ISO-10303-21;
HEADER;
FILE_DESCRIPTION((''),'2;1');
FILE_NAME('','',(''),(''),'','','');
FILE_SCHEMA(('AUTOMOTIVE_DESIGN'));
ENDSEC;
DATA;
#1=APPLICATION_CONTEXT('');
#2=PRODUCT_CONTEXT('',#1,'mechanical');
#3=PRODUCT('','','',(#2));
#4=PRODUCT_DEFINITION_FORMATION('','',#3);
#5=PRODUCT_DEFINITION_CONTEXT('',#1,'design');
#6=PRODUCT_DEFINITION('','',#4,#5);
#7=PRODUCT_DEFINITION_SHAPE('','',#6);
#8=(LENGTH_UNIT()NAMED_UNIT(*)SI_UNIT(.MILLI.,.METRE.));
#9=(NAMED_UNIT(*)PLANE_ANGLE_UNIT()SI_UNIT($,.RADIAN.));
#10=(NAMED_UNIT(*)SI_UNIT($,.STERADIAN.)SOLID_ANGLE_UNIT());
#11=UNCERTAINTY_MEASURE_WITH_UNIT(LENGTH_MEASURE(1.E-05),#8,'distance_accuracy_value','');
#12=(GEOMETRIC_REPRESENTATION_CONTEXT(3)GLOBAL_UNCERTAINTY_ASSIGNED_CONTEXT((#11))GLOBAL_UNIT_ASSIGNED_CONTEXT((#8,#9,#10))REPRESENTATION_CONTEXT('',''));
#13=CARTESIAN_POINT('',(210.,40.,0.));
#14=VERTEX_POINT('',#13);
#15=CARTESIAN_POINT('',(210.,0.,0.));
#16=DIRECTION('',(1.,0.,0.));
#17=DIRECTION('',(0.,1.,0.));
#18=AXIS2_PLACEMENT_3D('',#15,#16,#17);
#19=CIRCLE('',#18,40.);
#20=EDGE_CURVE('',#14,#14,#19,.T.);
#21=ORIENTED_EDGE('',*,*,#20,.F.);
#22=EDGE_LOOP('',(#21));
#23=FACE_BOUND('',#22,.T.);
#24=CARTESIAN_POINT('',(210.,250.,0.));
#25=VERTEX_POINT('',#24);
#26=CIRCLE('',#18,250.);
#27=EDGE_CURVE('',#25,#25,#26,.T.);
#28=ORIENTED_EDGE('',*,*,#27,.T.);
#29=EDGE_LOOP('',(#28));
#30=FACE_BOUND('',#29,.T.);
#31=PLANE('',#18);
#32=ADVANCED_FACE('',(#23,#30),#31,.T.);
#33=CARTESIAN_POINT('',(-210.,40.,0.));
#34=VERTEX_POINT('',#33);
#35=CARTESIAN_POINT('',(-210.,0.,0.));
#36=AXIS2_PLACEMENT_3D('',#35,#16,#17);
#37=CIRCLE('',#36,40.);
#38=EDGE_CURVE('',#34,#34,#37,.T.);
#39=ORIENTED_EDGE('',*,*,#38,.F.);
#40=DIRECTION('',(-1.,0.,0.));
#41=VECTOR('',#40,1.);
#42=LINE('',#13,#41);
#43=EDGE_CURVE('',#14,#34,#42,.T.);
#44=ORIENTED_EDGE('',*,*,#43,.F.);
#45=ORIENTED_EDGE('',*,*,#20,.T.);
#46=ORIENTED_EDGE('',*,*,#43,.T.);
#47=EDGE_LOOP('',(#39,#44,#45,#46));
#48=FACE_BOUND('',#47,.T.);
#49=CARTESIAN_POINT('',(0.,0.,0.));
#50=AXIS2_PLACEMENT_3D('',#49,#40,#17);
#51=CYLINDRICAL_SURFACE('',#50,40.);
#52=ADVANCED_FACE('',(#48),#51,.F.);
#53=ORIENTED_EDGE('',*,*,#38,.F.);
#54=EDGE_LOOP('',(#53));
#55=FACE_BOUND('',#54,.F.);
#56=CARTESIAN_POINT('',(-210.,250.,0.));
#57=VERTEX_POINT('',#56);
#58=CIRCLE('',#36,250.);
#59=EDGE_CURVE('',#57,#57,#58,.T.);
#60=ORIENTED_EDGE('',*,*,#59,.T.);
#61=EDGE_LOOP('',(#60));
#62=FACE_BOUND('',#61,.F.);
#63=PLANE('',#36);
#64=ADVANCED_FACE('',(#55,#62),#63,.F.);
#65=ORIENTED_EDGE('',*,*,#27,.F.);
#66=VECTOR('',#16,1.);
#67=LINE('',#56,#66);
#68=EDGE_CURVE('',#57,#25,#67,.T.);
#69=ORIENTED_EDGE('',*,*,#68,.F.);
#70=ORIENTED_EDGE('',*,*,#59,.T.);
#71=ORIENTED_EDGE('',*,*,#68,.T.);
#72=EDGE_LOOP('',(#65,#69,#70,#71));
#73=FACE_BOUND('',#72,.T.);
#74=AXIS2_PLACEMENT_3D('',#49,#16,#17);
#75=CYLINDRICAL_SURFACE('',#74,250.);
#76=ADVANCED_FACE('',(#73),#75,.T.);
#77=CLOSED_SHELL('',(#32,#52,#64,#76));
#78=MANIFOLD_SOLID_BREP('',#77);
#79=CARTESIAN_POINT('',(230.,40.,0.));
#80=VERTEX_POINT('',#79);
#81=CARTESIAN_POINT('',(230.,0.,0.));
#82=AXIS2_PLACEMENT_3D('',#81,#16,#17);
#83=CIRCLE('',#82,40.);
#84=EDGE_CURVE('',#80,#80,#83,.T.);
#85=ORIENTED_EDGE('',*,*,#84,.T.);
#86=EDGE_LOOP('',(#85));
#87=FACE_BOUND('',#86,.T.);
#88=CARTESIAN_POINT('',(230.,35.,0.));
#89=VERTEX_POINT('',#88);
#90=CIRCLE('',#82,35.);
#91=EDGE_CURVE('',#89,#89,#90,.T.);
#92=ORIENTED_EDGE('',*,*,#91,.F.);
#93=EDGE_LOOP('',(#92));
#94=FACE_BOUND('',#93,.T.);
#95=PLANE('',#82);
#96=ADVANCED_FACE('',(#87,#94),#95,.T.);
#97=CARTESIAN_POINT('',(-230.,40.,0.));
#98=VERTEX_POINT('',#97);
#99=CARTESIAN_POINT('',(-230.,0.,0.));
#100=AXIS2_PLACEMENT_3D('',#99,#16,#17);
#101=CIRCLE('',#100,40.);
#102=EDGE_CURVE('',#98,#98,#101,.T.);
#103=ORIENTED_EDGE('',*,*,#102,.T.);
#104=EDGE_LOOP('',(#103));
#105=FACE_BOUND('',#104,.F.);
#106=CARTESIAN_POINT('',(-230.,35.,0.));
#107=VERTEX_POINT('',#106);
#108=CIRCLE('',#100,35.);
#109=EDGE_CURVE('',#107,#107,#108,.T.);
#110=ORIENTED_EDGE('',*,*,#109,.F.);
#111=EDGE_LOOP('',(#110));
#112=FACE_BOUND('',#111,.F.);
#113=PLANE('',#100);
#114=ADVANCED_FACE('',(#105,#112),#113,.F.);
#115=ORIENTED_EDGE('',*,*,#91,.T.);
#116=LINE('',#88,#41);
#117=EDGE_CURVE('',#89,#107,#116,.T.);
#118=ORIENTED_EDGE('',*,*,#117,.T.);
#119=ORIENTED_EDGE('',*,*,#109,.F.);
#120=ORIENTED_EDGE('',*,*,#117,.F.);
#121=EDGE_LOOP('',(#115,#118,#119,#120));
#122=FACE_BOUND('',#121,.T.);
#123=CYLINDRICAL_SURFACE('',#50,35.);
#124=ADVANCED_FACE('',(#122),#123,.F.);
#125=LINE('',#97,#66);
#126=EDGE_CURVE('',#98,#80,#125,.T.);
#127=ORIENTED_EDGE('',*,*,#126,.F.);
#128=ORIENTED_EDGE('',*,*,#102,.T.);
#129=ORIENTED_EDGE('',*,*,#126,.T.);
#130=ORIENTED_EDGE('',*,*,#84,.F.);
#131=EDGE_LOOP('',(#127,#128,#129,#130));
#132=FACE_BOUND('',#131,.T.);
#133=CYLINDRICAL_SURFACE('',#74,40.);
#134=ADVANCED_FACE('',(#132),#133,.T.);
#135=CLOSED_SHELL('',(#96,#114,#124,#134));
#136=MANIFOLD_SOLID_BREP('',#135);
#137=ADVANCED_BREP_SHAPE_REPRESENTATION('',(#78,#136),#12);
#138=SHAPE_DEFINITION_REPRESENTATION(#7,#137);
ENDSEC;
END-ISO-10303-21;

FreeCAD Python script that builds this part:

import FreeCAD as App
import Part
import Sketcher

V = App.Vector

doc = App.newDocument("Part")
body = doc.addObject("PartDesign::Body", "Body")

# Sketch on YZ plane
sketch1 = doc.addObject("Sketcher::SketchObject", "Sketch")
body.addObject(sketch1)
sketch1.AttachmentSupport = (doc.YZ_Plane, [""])
sketch1.MapMode = "FlatFace"
sketch1.addGeometry(Part.Circle(V(0, 0, 0), V(0, 0, 1), 40), False)
sketch1.addGeometry(Part.Circle(V(0, 0, 0), V(0, 0, 1), 35), False)
sketch1.addConstraint(Sketcher.Constraint("Coincident", 0, 3, -1, 1))
sketch1.addConstraint(Sketcher.Constraint("Coincident", 1, 3, -1, 1))
sketch1.addConstraint(Sketcher.Constraint("Diameter", 0, 80.0))
sketch1.addConstraint(Sketcher.Constraint("Diameter", 1, 70.0))
pad1 = doc.addObject("PartDesign::Pad", "Pad")
body.addObject(pad1)
pad1.Profile = sketch1
pad1.Length = 460
pad1.Midplane = True
body2 = doc.addObject("PartDesign::Body", "Body001")

# Sketch on YZ plane
sketch2 = doc.addObject("Sketcher::SketchObject", "Sketch001")
body2.addObject(sketch2)
sketch2.AttachmentSupport = (doc.getObject("YZ_Plane001"), [""])
sketch2.MapMode = "FlatFace"
sketch2.addGeometry(Part.Circle(V(0, 0, 0), V(0, 0, 1), 250), False)
sketch2.addGeometry(Part.Circle(V(0, 0, 0), V(0, 0, 1), 40), False)
sketch2.addConstraint(Sketcher.Constraint("Coincident", 0, 3, -1, 1))
sketch2.addConstraint(Sketcher.Constraint("Coincident", 1, 3, -1, 1))
sketch2.addConstraint(Sketcher.Constraint("Diameter", 0, 500.0))
sketch2.addConstraint(Sketcher.Constraint("Diameter", 1, 80.0))
pad2 = doc.addObject("PartDesign::Pad", "Pad001")
body2.addObject(pad2)
pad2.Profile = sketch2
pad2.Length = 420
pad2.Midplane = True

doc.recompute()
